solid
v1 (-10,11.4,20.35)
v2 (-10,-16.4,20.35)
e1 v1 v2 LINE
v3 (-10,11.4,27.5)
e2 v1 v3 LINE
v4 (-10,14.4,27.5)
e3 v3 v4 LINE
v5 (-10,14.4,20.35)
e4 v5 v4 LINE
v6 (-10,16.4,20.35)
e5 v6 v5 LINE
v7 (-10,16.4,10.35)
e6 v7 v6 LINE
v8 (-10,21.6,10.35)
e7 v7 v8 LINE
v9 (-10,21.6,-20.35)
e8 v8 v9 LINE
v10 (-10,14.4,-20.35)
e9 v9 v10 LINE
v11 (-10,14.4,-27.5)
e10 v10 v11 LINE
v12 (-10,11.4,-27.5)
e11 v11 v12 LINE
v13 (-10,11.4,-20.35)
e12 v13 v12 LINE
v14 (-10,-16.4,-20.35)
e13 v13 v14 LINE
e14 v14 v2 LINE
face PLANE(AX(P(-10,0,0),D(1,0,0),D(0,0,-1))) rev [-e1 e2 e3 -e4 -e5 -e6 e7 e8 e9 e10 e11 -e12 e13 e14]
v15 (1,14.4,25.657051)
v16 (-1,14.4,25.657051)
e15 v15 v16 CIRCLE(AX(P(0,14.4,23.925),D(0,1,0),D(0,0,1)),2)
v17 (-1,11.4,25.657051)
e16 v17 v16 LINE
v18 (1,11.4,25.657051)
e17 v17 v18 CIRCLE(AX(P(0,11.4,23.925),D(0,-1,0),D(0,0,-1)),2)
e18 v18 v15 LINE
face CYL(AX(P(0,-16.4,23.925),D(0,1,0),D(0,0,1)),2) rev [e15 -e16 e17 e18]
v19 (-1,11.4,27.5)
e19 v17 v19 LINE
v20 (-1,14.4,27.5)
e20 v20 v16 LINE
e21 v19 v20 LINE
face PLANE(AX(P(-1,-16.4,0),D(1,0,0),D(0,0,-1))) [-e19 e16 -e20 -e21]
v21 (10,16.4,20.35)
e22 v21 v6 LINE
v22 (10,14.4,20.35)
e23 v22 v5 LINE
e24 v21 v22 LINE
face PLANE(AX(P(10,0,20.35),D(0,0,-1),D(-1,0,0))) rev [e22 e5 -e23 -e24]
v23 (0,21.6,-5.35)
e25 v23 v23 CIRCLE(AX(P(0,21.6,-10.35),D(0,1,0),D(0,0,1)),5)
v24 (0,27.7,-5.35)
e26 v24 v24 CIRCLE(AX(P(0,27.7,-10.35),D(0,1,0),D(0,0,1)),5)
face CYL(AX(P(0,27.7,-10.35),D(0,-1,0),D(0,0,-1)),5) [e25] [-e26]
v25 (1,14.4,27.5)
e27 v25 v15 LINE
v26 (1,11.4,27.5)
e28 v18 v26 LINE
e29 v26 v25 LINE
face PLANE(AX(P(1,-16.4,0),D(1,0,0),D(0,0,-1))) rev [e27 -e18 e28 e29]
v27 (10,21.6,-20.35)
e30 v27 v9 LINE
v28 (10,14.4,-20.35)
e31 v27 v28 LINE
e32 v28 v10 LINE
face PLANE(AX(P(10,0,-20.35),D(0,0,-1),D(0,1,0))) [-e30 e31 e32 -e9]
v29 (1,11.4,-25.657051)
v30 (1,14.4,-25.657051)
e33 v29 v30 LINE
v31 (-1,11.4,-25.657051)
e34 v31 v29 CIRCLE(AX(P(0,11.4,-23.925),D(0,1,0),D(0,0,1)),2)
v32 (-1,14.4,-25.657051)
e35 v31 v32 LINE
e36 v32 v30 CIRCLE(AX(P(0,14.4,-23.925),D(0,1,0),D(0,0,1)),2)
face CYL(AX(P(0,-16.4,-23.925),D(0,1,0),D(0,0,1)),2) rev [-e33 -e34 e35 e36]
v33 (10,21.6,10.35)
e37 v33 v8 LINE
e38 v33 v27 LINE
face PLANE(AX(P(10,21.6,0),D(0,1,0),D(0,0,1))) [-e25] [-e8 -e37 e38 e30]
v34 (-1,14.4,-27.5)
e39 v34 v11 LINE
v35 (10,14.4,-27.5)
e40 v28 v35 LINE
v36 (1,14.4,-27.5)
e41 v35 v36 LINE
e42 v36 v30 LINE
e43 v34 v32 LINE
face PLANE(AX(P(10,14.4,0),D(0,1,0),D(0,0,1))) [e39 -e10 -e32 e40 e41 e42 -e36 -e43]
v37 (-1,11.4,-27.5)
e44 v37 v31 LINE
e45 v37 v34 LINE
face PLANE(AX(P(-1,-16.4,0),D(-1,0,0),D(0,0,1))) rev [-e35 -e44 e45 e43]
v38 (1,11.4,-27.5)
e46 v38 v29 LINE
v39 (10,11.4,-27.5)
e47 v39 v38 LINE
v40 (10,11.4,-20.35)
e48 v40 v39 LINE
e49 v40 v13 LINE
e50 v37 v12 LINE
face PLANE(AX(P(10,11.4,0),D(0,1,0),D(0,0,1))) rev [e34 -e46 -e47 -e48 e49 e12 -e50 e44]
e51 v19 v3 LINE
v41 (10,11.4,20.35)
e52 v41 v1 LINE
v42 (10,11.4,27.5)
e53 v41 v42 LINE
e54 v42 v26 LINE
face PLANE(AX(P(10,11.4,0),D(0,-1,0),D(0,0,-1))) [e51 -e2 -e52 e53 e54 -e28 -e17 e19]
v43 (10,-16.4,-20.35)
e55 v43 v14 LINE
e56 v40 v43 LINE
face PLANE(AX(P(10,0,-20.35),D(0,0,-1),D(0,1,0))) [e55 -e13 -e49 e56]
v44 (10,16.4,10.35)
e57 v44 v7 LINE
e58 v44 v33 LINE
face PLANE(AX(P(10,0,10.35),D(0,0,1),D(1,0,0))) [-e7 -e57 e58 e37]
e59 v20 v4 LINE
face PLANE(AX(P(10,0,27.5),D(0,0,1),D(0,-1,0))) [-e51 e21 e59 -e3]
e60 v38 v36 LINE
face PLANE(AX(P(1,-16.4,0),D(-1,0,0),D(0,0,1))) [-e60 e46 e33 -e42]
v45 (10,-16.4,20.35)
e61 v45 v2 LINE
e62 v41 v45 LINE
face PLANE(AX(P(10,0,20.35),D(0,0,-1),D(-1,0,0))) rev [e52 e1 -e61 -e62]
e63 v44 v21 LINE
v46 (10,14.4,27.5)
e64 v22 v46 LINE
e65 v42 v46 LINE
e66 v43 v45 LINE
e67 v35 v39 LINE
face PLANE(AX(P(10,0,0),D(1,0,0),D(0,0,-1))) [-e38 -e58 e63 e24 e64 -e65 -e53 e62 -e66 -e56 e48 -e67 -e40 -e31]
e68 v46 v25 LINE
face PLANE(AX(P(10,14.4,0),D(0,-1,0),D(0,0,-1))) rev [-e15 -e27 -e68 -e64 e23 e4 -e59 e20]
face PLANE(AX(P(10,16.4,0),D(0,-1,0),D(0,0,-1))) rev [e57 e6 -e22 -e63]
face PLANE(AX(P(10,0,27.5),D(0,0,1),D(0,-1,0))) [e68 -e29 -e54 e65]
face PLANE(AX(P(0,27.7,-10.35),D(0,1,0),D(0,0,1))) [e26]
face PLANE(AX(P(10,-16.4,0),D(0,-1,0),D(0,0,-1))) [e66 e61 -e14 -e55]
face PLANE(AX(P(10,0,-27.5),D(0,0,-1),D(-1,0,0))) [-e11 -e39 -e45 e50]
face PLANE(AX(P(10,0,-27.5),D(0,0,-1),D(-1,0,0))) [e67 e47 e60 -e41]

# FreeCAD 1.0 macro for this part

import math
import FreeCAD as App
import Part
import Sketcher


def add_polygon(sketch, points):
    """Adds a closed chain of lines whose ends are joined by coincident constraints."""
    first, n = sketch.GeometryCount, len(points)
    for a, b in zip(points, points[1:] + points[:1]):
        sketch.addGeometry(Part.LineSegment(App.Vector(*a, 0), App.Vector(*b, 0)), False)
    for i in range(n):
        sketch.addConstraint(Sketcher.Constraint("Coincident", first + i, 2, first + (i + 1) % n, 1))

doc = App.newDocument("Part")
body = doc.addObject("PartDesign::Body", "Body")

# Sketch on YZ plane
sketch1 = doc.addObject("Sketcher::SketchObject", "Sketch")
body.addObject(sketch1)
sketch1.AttachmentSupport = (doc.YZ_Plane, [""])
sketch1.MapMode = "FlatFace"
add_polygon(sketch1, [(11.4, 20.4), (-16.4, 20.4), (-16.4, -20.4), (11.4, -20.4), (11.4, -27.5), (14.4, -27.5), (14.4, -20.4), (21.6, -20.4), (21.6, 10.3), (16.4, 10.3), (16.4, 20.4), (14.4, 20.4), (14.4, 27.5), (11.4, 27.5)])  # lines 0-13
sketch1.addConstraint(Sketcher.Constraint("Horizontal", 0))
sketch1.addConstraint(Sketcher.Constraint("Vertical", 1))
sketch1.addConstraint(Sketcher.Constraint("Horizontal", 2))
sketch1.addConstraint(Sketcher.Constraint("Vertical", 3))
sketch1.addConstraint(Sketcher.Constraint("Horizontal", 4))
sketch1.addConstraint(Sketcher.Constraint("Vertical", 5))
sketch1.addConstraint(Sketcher.Constraint("Horizontal", 6))
sketch1.addConstraint(Sketcher.Constraint("Vertical", 7))
sketch1.addConstraint(Sketcher.Constraint("Horizontal", 8))
sketch1.addConstraint(Sketcher.Constraint("Vertical", 9))
sketch1.addConstraint(Sketcher.Constraint("Horizontal", 10))
sketch1.addConstraint(Sketcher.Constraint("Vertical", 11))
sketch1.addConstraint(Sketcher.Constraint("Horizontal", 12))
sketch1.addConstraint(Sketcher.Constraint("Vertical", 13))
sketch1.addConstraint(Sketcher.Constraint("Symmetric", 1, 2, 9, 2, -1, 1))
sketch1.addConstraint(Sketcher.Constraint("Symmetric", 5, 2, 10, 2, -1))
sketch1.addConstraint(Sketcher.Constraint("Symmetric", 3, 2, 12, 2, -1))
sketch1.addConstraint(Sketcher.Constraint("Horizontal", 0, 2, 9, 2))
sketch1.addConstraint(Sketcher.Constraint("DistanceX", 4, 1, 4, 2, 3.0))
sketch1.addConstraint(Sketcher.Constraint("DistanceX", 10, 2, 10, 1, 2.0))
sketch1.addConstraint(Sketcher.Constraint("DistanceY", 9, 1, 9, 2, 10.0))
sketch1.addConstraint(Sketcher.Constraint("DistanceX", 0, 2, 0, 1, 27.8))
sketch1.addConstraint(Sketcher.Constraint("DistanceX", 6, 1, 6, 2, 7.2))
sketch1.addConstraint(Sketcher.Constraint("DistanceY", 1, 2, 1, 1, 40.7))
sketch1.addConstraint(Sketcher.Constraint("DistanceY", 3, 2, 3, 1, 7.15))
pad1 = doc.addObject("PartDesign::Pad", "Pad")
body.addObject(pad1)
pad1.Profile = sketch1
pad1.Length = 20
pad1.Midplane = True

# Sketch on XZ plane
sketch2 = doc.addObject("Sketcher::SketchObject", "Sketch001")
body.addObject(sketch2)
sketch2.AttachmentSupport = (doc.XZ_Plane, [""])
sketch2.MapMode = "FlatFace"
sketch2.AttachmentOffset = App.Placement(App.Vector(0, 0, -21.6), App.Rotation())
sketch2.addGeometry(Part.Circle(App.Vector(0, -10, 0), App.Vector(0, 0, 1), 5), False)
sketch2.addConstraint(Sketcher.Constraint("PointOnObject", 0, 3, -2))
sketch2.addConstraint(Sketcher.Constraint("Diameter", 0, 10.0))
sketch2.addConstraint(Sketcher.Constraint("DistanceY", 0, 3, -1, 1, 10.35))
pad2 = doc.addObject("PartDesign::Pad", "Pad001")
body.addObject(pad2)
pad2.Profile = sketch2
pad2.Length = 6.1
pad2.Reversed = True

# Sketch on XZ plane
sketch3 = doc.addObject("Sketcher::SketchObject", "Sketch002")
body.addObject(sketch3)
sketch3.AttachmentSupport = (doc.XZ_Plane, [""])
sketch3.MapMode = "FlatFace"
sketch3.AttachmentOffset = App.Placement(App.Vector(0, 0, -14.4), App.Rotation())
sketch3.addGeometry(Part.LineSegment(App.Vector(-1, 27.5, 0), App.Vector(1, 27.5, 0)), False)
sketch3.addGeometry(Part.LineSegment(App.Vector(1, 27.5, 0), App.Vector(1, 25.7, 0)), False)
sketch3.addGeometry(Part.ArcOfCircle(Part.Circle(App.Vector(0, 23.9, 0), App.Vector(0, 0, 1), 2), math.radians(0), math.radians(60)), False)
sketch3.addGeometry(Part.ArcOfCircle(Part.Circle(App.Vector(0, 23.9, 0), App.Vector(0, 0, 1), 2), math.radians(120), math.radians(360)), False)
sketch3.addGeometry(Part.LineSegment(App.Vector(-1, 25.7, 0), App.Vector(-1, 27.5, 0)), False)
sketch3.addGeometry(Part.ArcOfCircle(Part.Circle(App.Vector(0, -23.9, 0), App.Vector(0, 0, 1), 2), math.radians(-60), math.radians(0)), False)
sketch3.addGeometry(Part.LineSegment(App.Vector(1, -25.7, 0), App.Vector(1, -27.5, 0)), False)
sketch3.addGeometry(Part.LineSegment(App.Vector(1, -27.5, 0), App.Vector(-1, -27.5, 0)), False)
sketch3.addGeometry(Part.LineSegment(App.Vector(-1, -27.5, 0), App.Vector(-1, -25.7, 0)), False)
sketch3.addGeometry(Part.ArcOfCircle(Part.Circle(App.Vector(0, -23.9, 0), App.Vector(0, 0, 1), 2), math.radians(0), math.radians(240)), False)
sketch3.addConstraint(Sketcher.Constraint("Coincident", 0, 2, 1, 1))
sketch3.addConstraint(Sketcher.Constraint("Coincident", 1, 2, 2, 2))
sketch3.addConstraint(Sketcher.Constraint("Tangent", 2, 1, 3, 2))
sketch3.addConstraint(Sketcher.Constraint("Coincident", 3, 1, 4, 1))
sketch3.addConstraint(Sketcher.Constraint("Coincident", 4, 2, 0, 1))
sketch3.addConstraint(Sketcher.Constraint("Coincident", 5, 1, 6, 1))
sketch3.addConstraint(Sketcher.Constraint("Coincident", 6, 2, 7, 1))
sketch3.addConstraint(Sketcher.Constraint("Coincident", 7, 2, 8, 1))
sketch3.addConstraint(Sketcher.Constraint("Coincident", 8, 2, 9, 2))
sketch3.addConstraint(Sketcher.Constraint("Tangent", 9, 1, 5, 2))
sketch3.addConstraint(Sketcher.Constraint("Horizontal", 0))
sketch3.addConstraint(Sketcher.Constraint("Vertical", 1))
sketch3.addConstraint(Sketcher.Constraint("Vertical", 4))
sketch3.addConstraint(Sketcher.Constraint("Vertical", 6))
sketch3.addConstraint(Sketcher.Constraint("Horizontal", 7))
sketch3.addConstraint(Sketcher.Constraint("Vertical", 8))
sketch3.addConstraint(Sketcher.Constraint("Equal", 2, 3))
sketch3.addConstraint(Sketcher.Constraint("Equal", 3, 5))
sketch3.addConstraint(Sketcher.Constraint("Equal", 5, 9))
sketch3.addConstraint(Sketcher.Constraint("Symmetric", 2, 3, 5, 3, -1, 1))
sketch3.addConstraint(Sketcher.Constraint("Symmetric", 4, 2, 6, 2, -1, 1))
sketch3.addConstraint(Sketcher.Constraint("Symmetric", 1, 2, 3, 1, -2))
sketch3.addConstraint(Sketcher.Constraint("Horizontal", 3, 3, 2, 1))
sketch3.addConstraint(Sketcher.Constraint("Horizontal", 5, 1, 8, 2))
sketch3.addConstraint(Sketcher.Constraint("Horizontal", 5, 3, 9, 1))
sketch3.addConstraint(Sketcher.Constraint("Radius", 2, 2.0))
sketch3.addConstraint(Sketcher.Constraint("DistanceX", 0, 1, 0, 2, 2.0))
sketch3.addConstraint(Sketcher.Constraint("DistanceY", -1, 1, 0, 2, 27.5))
sketch3.addConstraint(Sketcher.Constraint("DistanceY", 5, 3, 3, 3, 47.85))
pocket1 = doc.addObject("PartDesign::Pocket", "Pocket")
body.addObject(pocket1)
pocket1.Profile = sketch3
pocket1.Type = "ThroughAll"
pocket1.Reversed = True

doc.recompute()
